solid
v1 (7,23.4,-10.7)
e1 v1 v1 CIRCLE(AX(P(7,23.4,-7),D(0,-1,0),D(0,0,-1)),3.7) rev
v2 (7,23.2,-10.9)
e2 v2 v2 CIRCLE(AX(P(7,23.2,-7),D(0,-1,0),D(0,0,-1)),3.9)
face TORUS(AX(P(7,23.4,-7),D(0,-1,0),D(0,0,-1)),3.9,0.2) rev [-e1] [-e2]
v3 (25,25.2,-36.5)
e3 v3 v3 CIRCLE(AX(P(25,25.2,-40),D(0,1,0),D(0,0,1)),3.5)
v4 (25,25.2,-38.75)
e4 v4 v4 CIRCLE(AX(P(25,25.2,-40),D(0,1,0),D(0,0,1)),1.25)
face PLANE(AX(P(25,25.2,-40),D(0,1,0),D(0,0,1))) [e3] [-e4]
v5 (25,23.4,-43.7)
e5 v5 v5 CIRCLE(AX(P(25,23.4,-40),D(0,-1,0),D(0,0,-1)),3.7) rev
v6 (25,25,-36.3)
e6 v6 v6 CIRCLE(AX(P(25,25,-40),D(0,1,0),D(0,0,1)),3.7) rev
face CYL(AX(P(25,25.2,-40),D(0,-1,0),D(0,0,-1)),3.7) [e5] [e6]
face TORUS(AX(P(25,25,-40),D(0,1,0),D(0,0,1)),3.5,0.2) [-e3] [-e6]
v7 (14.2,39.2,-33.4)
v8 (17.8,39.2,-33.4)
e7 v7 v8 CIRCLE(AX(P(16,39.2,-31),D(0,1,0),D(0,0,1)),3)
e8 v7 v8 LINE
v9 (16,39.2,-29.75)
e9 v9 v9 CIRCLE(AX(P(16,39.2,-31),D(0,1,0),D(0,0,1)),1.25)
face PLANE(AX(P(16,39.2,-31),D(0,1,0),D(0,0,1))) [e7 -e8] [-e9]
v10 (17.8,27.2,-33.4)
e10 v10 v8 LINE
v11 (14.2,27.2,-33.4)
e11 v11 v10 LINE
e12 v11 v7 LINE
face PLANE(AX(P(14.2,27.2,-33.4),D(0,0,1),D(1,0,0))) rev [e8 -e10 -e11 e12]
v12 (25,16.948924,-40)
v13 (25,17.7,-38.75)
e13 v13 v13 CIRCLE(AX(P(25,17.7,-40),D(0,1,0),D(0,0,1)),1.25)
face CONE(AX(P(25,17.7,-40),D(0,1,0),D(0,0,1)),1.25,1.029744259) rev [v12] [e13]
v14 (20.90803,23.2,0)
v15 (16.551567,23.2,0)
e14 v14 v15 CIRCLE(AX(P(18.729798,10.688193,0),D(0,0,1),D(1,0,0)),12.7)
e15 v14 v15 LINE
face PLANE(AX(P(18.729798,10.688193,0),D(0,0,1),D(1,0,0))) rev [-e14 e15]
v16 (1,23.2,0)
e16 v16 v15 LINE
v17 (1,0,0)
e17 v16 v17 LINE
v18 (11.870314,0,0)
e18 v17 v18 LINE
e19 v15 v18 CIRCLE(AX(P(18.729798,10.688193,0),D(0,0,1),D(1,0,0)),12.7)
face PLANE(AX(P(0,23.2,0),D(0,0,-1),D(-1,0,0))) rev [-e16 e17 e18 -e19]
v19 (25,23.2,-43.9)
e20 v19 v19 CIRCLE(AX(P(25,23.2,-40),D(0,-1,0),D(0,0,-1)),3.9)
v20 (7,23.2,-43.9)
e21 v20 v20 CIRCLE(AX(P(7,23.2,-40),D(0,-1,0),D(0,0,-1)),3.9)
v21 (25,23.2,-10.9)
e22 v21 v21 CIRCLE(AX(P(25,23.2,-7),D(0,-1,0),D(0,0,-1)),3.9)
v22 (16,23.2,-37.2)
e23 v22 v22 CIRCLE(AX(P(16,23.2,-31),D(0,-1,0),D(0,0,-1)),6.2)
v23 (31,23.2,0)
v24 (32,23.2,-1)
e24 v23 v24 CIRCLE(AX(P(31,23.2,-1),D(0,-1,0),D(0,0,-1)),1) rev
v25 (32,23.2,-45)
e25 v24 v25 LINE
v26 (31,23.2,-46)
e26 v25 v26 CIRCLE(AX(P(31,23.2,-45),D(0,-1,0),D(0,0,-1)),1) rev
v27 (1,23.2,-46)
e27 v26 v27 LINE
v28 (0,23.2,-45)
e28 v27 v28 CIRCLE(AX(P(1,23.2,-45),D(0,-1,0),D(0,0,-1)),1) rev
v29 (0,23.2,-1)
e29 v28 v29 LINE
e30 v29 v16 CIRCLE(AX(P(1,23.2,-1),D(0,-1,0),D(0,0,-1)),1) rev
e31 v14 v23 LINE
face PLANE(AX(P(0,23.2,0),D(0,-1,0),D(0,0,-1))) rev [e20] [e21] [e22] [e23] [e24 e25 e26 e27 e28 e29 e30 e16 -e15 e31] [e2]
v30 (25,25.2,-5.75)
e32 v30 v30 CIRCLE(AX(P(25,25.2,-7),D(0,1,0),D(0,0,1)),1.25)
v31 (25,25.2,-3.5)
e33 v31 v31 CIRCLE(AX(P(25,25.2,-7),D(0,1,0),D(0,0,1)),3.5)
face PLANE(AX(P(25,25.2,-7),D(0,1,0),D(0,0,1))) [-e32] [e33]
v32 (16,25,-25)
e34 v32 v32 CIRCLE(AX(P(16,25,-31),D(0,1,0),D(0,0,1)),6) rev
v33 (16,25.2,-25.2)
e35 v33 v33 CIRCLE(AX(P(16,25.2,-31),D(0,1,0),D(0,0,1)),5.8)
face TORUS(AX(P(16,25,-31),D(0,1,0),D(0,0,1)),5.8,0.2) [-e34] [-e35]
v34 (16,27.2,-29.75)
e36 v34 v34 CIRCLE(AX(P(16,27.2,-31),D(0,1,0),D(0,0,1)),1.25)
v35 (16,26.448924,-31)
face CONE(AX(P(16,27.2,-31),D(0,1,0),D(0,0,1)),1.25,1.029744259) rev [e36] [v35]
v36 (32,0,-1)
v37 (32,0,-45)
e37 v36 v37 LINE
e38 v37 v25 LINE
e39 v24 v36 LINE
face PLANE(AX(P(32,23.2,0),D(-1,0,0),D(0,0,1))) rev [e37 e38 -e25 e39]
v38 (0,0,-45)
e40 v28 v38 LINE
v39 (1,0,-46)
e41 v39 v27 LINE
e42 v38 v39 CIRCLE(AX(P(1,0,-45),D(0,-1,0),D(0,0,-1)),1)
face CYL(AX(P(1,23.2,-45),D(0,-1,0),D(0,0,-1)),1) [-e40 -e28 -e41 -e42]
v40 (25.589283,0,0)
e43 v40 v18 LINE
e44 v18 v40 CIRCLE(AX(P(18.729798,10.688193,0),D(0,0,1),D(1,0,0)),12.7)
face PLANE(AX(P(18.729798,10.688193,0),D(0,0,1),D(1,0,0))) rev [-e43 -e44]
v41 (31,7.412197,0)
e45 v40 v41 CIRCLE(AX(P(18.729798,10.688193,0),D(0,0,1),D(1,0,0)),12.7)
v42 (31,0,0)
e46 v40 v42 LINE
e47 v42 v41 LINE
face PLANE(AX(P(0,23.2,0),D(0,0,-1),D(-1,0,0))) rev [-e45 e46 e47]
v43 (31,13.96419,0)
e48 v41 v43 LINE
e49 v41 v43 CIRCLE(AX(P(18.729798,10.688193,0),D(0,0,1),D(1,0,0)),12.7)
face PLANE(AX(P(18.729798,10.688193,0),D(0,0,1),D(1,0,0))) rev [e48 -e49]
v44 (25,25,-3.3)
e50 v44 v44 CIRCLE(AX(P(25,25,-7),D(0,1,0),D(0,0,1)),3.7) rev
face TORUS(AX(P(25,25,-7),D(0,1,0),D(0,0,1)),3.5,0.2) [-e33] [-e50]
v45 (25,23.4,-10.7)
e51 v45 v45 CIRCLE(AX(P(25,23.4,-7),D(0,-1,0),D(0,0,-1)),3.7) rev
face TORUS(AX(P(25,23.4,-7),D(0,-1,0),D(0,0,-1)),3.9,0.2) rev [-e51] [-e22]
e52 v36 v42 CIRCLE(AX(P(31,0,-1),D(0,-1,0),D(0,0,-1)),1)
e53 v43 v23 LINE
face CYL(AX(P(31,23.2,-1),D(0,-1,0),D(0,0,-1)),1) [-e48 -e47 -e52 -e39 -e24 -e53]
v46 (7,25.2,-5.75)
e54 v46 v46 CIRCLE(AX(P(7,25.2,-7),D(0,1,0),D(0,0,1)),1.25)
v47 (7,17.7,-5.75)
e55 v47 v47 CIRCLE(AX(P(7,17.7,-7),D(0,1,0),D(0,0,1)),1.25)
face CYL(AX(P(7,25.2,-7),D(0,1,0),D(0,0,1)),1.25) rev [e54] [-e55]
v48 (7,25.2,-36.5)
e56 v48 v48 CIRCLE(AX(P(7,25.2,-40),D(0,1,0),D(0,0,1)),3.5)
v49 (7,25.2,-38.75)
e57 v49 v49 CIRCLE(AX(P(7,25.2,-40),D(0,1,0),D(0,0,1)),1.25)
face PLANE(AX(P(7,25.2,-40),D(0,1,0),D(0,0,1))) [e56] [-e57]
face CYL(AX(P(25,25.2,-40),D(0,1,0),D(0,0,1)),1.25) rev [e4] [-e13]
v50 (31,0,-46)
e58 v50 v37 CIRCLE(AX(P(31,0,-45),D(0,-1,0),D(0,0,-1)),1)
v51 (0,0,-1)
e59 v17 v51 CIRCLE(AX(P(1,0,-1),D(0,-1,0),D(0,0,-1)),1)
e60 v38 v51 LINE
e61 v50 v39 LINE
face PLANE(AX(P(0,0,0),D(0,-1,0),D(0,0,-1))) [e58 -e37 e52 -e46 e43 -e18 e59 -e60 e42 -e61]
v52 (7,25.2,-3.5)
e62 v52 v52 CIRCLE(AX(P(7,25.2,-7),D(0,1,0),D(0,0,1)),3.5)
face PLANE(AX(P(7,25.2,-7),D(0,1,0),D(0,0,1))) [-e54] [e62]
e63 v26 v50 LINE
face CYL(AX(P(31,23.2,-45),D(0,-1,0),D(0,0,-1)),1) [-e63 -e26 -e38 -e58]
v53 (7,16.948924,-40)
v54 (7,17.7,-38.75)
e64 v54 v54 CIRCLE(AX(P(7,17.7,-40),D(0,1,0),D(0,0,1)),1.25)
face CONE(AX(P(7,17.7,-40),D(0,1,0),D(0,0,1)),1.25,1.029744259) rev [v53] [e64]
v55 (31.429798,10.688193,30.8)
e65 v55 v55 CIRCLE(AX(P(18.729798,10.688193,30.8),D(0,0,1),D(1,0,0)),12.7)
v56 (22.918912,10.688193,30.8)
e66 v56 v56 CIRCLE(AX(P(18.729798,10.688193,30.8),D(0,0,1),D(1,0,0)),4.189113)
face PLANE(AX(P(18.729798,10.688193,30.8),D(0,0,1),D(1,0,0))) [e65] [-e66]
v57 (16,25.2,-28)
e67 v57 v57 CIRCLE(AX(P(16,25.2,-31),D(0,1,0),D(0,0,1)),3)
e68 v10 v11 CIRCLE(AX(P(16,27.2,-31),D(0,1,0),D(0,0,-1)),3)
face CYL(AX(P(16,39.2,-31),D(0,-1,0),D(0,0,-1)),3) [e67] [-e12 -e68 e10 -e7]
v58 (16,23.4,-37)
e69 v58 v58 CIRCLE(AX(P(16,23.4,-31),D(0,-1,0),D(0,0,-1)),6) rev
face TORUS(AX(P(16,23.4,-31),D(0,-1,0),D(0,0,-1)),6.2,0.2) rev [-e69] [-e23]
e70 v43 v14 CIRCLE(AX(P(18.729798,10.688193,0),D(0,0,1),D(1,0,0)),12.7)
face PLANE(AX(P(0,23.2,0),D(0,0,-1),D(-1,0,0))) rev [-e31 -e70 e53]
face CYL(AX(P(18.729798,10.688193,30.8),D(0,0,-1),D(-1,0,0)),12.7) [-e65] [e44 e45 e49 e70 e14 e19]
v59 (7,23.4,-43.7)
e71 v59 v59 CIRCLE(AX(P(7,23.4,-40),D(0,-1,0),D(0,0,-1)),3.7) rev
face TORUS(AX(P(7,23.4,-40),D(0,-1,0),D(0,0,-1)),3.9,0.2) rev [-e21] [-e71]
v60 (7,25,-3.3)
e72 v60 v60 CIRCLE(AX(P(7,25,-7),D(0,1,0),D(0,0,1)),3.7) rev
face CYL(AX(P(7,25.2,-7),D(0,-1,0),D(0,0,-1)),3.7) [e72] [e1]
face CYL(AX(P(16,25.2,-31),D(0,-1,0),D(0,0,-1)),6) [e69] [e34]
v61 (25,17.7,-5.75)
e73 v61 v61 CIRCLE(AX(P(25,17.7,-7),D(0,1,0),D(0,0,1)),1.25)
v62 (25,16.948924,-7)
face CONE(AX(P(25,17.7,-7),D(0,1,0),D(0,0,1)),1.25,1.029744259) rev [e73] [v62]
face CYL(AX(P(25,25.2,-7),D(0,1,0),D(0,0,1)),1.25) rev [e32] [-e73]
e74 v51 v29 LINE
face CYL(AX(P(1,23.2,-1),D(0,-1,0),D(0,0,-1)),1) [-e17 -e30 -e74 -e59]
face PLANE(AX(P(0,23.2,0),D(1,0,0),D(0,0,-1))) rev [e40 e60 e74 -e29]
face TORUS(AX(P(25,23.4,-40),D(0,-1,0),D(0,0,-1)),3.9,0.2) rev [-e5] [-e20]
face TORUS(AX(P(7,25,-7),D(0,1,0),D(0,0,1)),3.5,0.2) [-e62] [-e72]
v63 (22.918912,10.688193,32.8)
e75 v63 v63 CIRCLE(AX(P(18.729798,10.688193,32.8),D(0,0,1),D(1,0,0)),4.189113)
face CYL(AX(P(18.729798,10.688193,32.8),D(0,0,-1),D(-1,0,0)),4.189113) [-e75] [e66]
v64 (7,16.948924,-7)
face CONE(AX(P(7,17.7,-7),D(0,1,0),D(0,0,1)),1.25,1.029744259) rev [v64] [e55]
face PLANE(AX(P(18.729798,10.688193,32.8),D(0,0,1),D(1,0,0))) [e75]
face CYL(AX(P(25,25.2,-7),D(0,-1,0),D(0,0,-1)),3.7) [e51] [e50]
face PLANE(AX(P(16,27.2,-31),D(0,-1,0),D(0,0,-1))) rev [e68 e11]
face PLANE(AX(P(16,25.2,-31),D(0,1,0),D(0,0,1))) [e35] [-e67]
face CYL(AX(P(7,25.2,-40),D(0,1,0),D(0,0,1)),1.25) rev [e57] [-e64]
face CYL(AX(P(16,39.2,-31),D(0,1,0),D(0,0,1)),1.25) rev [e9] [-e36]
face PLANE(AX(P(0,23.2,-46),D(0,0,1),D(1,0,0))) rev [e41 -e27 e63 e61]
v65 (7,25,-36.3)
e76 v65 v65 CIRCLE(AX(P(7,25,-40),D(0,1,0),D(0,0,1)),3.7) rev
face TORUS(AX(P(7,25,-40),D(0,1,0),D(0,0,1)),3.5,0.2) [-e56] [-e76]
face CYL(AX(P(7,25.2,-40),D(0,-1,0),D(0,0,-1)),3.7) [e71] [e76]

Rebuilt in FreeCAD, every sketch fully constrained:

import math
import FreeCAD as App
import Part
import Sketcher
from FreeCAD import Vector


def edges_at(feature, points):
    """Names of the edges that pass closest to the given points."""
    edges = feature.Shape.Edges
    near = lambda p: min(range(len(edges)), key=lambda i: edges[i].distToShape(Part.Vertex(*p))[0])
    return sorted({f"Edge{near(p) + 1}" for p in points})

doc = App.newDocument("Part")
body = doc.addObject("PartDesign::Body", "Body")

# Sketch on XZ plane
sketch1 = body.newObject("Sketcher::SketchObject", "Sketch")
sketch1.AttachmentSupport = (doc.getObject("XZ_Plane"), [""])
sketch1.MapMode = "FlatFace"
sketch1.addGeometry(Part.LineSegment(Vector(0, -46, 0), Vector(0, 0, 0)), False)
sketch1.addGeometry(Part.LineSegment(Vector(0, 0, 0), Vector(32, 0, 0)), False)
sketch1.addGeometry(Part.LineSegment(Vector(32, 0, 0), Vector(32, -46, 0)), False)
sketch1.addGeometry(Part.LineSegment(Vector(32, -46, 0), Vector(0, -46, 0)), False)
sketch1.addConstraint(Sketcher.Constraint("Coincident", 0, 2, 1, 1))
sketch1.addConstraint(Sketcher.Constraint("Coincident", 1, 2, 2, 1))
sketch1.addConstraint(Sketcher.Constraint("Coincident", 2, 2, 3, 1))
sketch1.addConstraint(Sketcher.Constraint("Coincident", 3, 2, 0, 1))
sketch1.addConstraint(Sketcher.Constraint("Vertical", 0))
sketch1.addConstraint(Sketcher.Constraint("Horizontal", 1))
sketch1.addConstraint(Sketcher.Constraint("Vertical", 2))
sketch1.addConstraint(Sketcher.Constraint("Horizontal", 3))
sketch1.addConstraint(Sketcher.Constraint("Coincident", 0, 2, -1, 1))
sketch1.addConstraint(Sketcher.Constraint("DistanceX", 1, 1, 1, 2, 32.0))
sketch1.addConstraint(Sketcher.Constraint("DistanceY", 0, 1, 0, 2, 46.0))
pad1 = body.newObject("PartDesign::Pad", "Pad")
pad1.Profile = sketch1
pad1.Length = 23.2
pad1.Reversed = True

# Sketch on XZ plane
sketch2 = body.newObject("Sketcher::SketchObject", "Sketch001")
sketch2.AttachmentSupport = (doc.getObject("XZ_Plane"), [""])
sketch2.MapMode = "FlatFace"
sketch2.AttachmentOffset = App.Placement(Vector(0, 0, -23.2), App.Rotation())
sketch2.addGeometry(Part.Circle(Vector(7, -40, 0), Vector(0, 0, 1), 3.7), False)
sketch2.addGeometry(Part.Circle(Vector(25, -40, 0), Vector(0, 0, 1), 3.7), False)
sketch2.addGeometry(Part.Circle(Vector(7, -7, 0), Vector(0, 0, 1), 3.7), False)
sketch2.addGeometry(Part.Circle(Vector(25, -7, 0), Vector(0, 0, 1), 3.7), False)
sketch2.addGeometry(Part.Circle(Vector(16, -31, 0), Vector(0, 0, 1), 6), False)
sketch2.addConstraint(Sketcher.Constraint("Equal", 0, 1))
sketch2.addConstraint(Sketcher.Constraint("Equal", 1, 2))
sketch2.addConstraint(Sketcher.Constraint("Equal", 2, 3))
sketch2.addConstraint(Sketcher.Constraint("Horizontal", 0, 3, 1, 3))
sketch2.addConstraint(Sketcher.Constraint("Horizontal", 2, 3, 3, 3))
sketch2.addConstraint(Sketcher.Constraint("Vertical", 0, 3, 2, 3))
sketch2.addConstraint(Sketcher.Constraint("Vertical", 1, 3, 3, 3))
sketch2.addConstraint(Sketcher.Constraint("Diameter", 4, 12.0))
sketch2.addConstraint(Sketcher.Constraint("Diameter", 0, 7.4))
sketch2.addConstraint(Sketcher.Constraint("DistanceX", -1, 1, 0, 3, 7.0))
sketch2.addConstraint(Sketcher.Constraint("DistanceY", 0, 3, -1, 1, 40.0))
sketch2.addConstraint(Sketcher.Constraint("DistanceX", -1, 1, 1, 3, 25.0))
sketch2.addConstraint(Sketcher.Constraint("DistanceY", 2, 3, -1, 1, 7.0))
sketch2.addConstraint(Sketcher.Constraint("DistanceX", -1, 1, 4, 3, 16.0))
sketch2.addConstraint(Sketcher.Constraint("DistanceY", 4, 3, -1, 1, 31.0))
pad2 = body.newObject("PartDesign::Pad", "Pad001")
pad2.Profile = sketch2
pad2.Length = 2
pad2.Reversed = True

# Sketch on XZ plane
sketch3 = body.newObject("Sketcher::SketchObject", "Sketch002")
sketch3.AttachmentSupport = (doc.getObject("XZ_Plane"), [""])
sketch3.MapMode = "FlatFace"
sketch3.AttachmentOffset = App.Placement(Vector(0, 0, -25.2), App.Rotation())
sketch3.addGeometry(Part.Circle(Vector(16, -31, 0), Vector(0, 0, 1), 3), False)
sketch3.addConstraint(Sketcher.Constraint("Diameter", 0, 6.0))
sketch3.addConstraint(Sketcher.Constraint("DistanceX", -1, 1, 0, 3, 16.0))
sketch3.addConstraint(Sketcher.Constraint("DistanceY", 0, 3, -1, 1, 31.0))
pad3 = body.newObject("PartDesign::Pad", "Pad002")
pad3.Profile = sketch3
pad3.Length = 14
pad3.Reversed = True

# Sketch on XZ plane
sketch4 = body.newObject("Sketcher::SketchObject", "Sketch003")
sketch4.AttachmentSupport = (doc.getObject("XZ_Plane"), [""])
sketch4.MapMode = "FlatFace"
sketch4.AttachmentOffset = App.Placement(Vector(0, 0, -39.2), App.Rotation())
sketch4.addGeometry(Part.Circle(Vector(16, -31, 0), Vector(0, 0, 1), 1.25), False)
sketch4.addConstraint(Sketcher.Constraint("Diameter", 0, 2.5))
sketch4.addConstraint(Sketcher.Constraint("DistanceX", -1, 1, 0, 3, 16.0))
sketch4.addConstraint(Sketcher.Constraint("DistanceY", 0, 3, -1, 1, 31.0))
doc.recompute()
hole = body.newObject("PartDesign::Hole", "Hole")
hole.Profile = sketch4
hole.ThreadType = "None"
hole.Diameter = 2.5
hole.DepthType = "Dimension"
hole.Depth = 12
hole.DrillPoint = "Angled"
hole.DrillPointAngle = 118
hole.Reversed = True

# Sketch on XZ plane
sketch5 = body.newObject("Sketcher::SketchObject", "Sketch004")
sketch5.AttachmentSupport = (doc.getObject("XZ_Plane"), [""])
sketch5.MapMode = "FlatFace"
sketch5.AttachmentOffset = App.Placement(Vector(0, 0, -39.2), App.Rotation())
sketch5.addGeometry(Part.LineSegment(Vector(14.2, -33.4, 0), Vector(17.8, -33.4, 0)), False)
sketch5.addGeometry(Part.ArcOfCircle(Part.Circle(Vector(16, -31, 0), Vector(0, 0, 1), 3), math.radians(-126.869898), math.radians(-53.130102)), False)
sketch5.addConstraint(Sketcher.Constraint("Coincident", 0, 1, 1, 1))
sketch5.addConstraint(Sketcher.Constraint("Coincident", 1, 2, 0, 2))
sketch5.addConstraint(Sketcher.Constraint("Horizontal", 0))
sketch5.addConstraint(Sketcher.Constraint("Radius", 1, 3.0))
sketch5.addConstraint(Sketcher.Constraint("DistanceX", 0, 1, 0, 2, 3.6))
sketch5.addConstraint(Sketcher.Constraint("DistanceX", -1, 1, 1, 3, 16.0))
sketch5.addConstraint(Sketcher.Constraint("DistanceY", 1, 3, -1, 1, 31.0))
pocket1 = body.newObject("PartDesign::Pocket", "Pocket")
pocket1.Profile = sketch5
pocket1.Length = 12
pocket1.Reversed = True

# Sketch on XZ plane
sketch6 = body.newObject("Sketcher::SketchObject", "Sketch005")
sketch6.AttachmentSupport = (doc.getObject("XZ_Plane"), [""])
sketch6.MapMode = "FlatFace"
sketch6.AttachmentOffset = App.Placement(Vector(0, 0, -25.2), App.Rotation())
sketch6.addGeometry(Part.Circle(Vector(25, -7, 0), Vector(0, 0, 1), 1.25), False)
sketch6.addGeometry(Part.Circle(Vector(7, -7, 0), Vector(0, 0, 1), 1.25), False)
sketch6.addGeometry(Part.Circle(Vector(7, -40, 0), Vector(0, 0, 1), 1.25), False)
sketch6.addGeometry(Part.Circle(Vector(25, -40, 0), Vector(0, 0, 1), 1.25), False)
sketch6.addConstraint(Sketcher.Constraint("Equal", 0, 1))
sketch6.addConstraint(Sketcher.Constraint("Equal", 1, 2))
sketch6.addConstraint(Sketcher.Constraint("Equal", 2, 3))
sketch6.addConstraint(Sketcher.Constraint("Horizontal", 0, 3, 1, 3))
sketch6.addConstraint(Sketcher.Constraint("Horizontal", 2, 3, 3, 3))
sketch6.addConstraint(Sketcher.Constraint("Vertical", 1, 3, 2, 3))
sketch6.addConstraint(Sketcher.Constraint("Vertical", 0, 3, 3, 3))
sketch6.addConstraint(Sketcher.Constraint("Diameter", 0, 2.5))
sketch6.addConstraint(Sketcher.Constraint("DistanceX", -1, 1, 0, 3, 25.0))
sketch6.addConstraint(Sketcher.Constraint("DistanceY", 0, 3, -1, 1, 7.0))
sketch6.addConstraint(Sketcher.Constraint("DistanceX", -1, 1, 1, 3, 7.0))
sketch6.addConstraint(Sketcher.Constraint("DistanceY", 2, 3, -1, 1, 40.0))
doc.recompute()
hole2 = body.newObject("PartDesign::Hole", "Hole001")
hole2.Profile = sketch6
hole2.ThreadType = "None"
hole2.Diameter = 2.5
hole2.DepthType = "Dimension"
hole2.Depth = 7.5
hole2.DrillPoint = "Angled"
hole2.DrillPointAngle = 118
hole2.Reversed = True
doc.recompute()

fillet = body.newObject("PartDesign::Fillet", "Fillet")
fillet.Base = (hole2, edges_at(hole2, [
    (0, 11.6, -46),
    (32, 11.6, -46),
    (32, 11.6, 0),
    (0, 11.6, 0),
]))
fillet.Radius = 1
doc.recompute()

fillet2 = body.newObject("PartDesign::Fillet", "Fillet001")
fillet2.Base = (fillet, edges_at(fillet, [
    (3.3, 23.2, -40),
    (3.3, 25.2, -40),
    (21.3, 23.2, -40),
    (21.3, 25.2, -40),
    (3.3, 23.2, -7),
    (3.3, 25.2, -7),
    (21.3, 23.2, -7),
    (21.3, 25.2, -7),
    (10, 23.2, -31),
    (10, 25.2, -31),
]))
fillet2.Radius = 0.2

# Sketch on XY plane
sketch7 = body.newObject("Sketcher::SketchObject", "Sketch006")
sketch7.AttachmentSupport = (doc.getObject("XY_Plane"), [""])
sketch7.MapMode = "FlatFace"
sketch7.addGeometry(Part.Circle(Vector(18.729798, 10.688193, 0), Vector(0, 0, 1), 12.7), False)
sketch7.addConstraint(Sketcher.Constraint("Diameter", 0, 25.4))
sketch7.addConstraint(Sketcher.Constraint("DistanceX", -1, 1, 0, 3, 18.729798))
sketch7.addConstraint(Sketcher.Constraint("DistanceY", -1, 1, 0, 3, 10.688193))
pad4 = body.newObject("PartDesign::Pad", "Pad003")
pad4.Profile = sketch7
pad4.Length = 30.8

# Sketch on XY plane
sketch8 = body.newObject("Sketcher::SketchObject", "Sketch007")
sketch8.AttachmentSupport = (doc.getObject("XY_Plane"), [""])
sketch8.MapMode = "FlatFace"
sketch8.AttachmentOffset = App.Placement(Vector(0, 0, 30.8), App.Rotation())
sketch8.addGeometry(Part.Circle(Vector(18.729798, 10.688193, 0), Vector(0, 0, 1), 4.189113), False)
sketch8.addConstraint(Sketcher.Constraint("Diameter", 0, 8.378226))
sketch8.addConstraint(Sketcher.Constraint("DistanceX", -1, 1, 0, 3, 18.729798))
sketch8.addConstraint(Sketcher.Constraint("DistanceY", -1, 1, 0, 3, 10.688193))
pad5 = body.newObject("PartDesign::Pad", "Pad004")
pad5.Profile = sketch8
pad5.Length = 2

doc.recompute()
